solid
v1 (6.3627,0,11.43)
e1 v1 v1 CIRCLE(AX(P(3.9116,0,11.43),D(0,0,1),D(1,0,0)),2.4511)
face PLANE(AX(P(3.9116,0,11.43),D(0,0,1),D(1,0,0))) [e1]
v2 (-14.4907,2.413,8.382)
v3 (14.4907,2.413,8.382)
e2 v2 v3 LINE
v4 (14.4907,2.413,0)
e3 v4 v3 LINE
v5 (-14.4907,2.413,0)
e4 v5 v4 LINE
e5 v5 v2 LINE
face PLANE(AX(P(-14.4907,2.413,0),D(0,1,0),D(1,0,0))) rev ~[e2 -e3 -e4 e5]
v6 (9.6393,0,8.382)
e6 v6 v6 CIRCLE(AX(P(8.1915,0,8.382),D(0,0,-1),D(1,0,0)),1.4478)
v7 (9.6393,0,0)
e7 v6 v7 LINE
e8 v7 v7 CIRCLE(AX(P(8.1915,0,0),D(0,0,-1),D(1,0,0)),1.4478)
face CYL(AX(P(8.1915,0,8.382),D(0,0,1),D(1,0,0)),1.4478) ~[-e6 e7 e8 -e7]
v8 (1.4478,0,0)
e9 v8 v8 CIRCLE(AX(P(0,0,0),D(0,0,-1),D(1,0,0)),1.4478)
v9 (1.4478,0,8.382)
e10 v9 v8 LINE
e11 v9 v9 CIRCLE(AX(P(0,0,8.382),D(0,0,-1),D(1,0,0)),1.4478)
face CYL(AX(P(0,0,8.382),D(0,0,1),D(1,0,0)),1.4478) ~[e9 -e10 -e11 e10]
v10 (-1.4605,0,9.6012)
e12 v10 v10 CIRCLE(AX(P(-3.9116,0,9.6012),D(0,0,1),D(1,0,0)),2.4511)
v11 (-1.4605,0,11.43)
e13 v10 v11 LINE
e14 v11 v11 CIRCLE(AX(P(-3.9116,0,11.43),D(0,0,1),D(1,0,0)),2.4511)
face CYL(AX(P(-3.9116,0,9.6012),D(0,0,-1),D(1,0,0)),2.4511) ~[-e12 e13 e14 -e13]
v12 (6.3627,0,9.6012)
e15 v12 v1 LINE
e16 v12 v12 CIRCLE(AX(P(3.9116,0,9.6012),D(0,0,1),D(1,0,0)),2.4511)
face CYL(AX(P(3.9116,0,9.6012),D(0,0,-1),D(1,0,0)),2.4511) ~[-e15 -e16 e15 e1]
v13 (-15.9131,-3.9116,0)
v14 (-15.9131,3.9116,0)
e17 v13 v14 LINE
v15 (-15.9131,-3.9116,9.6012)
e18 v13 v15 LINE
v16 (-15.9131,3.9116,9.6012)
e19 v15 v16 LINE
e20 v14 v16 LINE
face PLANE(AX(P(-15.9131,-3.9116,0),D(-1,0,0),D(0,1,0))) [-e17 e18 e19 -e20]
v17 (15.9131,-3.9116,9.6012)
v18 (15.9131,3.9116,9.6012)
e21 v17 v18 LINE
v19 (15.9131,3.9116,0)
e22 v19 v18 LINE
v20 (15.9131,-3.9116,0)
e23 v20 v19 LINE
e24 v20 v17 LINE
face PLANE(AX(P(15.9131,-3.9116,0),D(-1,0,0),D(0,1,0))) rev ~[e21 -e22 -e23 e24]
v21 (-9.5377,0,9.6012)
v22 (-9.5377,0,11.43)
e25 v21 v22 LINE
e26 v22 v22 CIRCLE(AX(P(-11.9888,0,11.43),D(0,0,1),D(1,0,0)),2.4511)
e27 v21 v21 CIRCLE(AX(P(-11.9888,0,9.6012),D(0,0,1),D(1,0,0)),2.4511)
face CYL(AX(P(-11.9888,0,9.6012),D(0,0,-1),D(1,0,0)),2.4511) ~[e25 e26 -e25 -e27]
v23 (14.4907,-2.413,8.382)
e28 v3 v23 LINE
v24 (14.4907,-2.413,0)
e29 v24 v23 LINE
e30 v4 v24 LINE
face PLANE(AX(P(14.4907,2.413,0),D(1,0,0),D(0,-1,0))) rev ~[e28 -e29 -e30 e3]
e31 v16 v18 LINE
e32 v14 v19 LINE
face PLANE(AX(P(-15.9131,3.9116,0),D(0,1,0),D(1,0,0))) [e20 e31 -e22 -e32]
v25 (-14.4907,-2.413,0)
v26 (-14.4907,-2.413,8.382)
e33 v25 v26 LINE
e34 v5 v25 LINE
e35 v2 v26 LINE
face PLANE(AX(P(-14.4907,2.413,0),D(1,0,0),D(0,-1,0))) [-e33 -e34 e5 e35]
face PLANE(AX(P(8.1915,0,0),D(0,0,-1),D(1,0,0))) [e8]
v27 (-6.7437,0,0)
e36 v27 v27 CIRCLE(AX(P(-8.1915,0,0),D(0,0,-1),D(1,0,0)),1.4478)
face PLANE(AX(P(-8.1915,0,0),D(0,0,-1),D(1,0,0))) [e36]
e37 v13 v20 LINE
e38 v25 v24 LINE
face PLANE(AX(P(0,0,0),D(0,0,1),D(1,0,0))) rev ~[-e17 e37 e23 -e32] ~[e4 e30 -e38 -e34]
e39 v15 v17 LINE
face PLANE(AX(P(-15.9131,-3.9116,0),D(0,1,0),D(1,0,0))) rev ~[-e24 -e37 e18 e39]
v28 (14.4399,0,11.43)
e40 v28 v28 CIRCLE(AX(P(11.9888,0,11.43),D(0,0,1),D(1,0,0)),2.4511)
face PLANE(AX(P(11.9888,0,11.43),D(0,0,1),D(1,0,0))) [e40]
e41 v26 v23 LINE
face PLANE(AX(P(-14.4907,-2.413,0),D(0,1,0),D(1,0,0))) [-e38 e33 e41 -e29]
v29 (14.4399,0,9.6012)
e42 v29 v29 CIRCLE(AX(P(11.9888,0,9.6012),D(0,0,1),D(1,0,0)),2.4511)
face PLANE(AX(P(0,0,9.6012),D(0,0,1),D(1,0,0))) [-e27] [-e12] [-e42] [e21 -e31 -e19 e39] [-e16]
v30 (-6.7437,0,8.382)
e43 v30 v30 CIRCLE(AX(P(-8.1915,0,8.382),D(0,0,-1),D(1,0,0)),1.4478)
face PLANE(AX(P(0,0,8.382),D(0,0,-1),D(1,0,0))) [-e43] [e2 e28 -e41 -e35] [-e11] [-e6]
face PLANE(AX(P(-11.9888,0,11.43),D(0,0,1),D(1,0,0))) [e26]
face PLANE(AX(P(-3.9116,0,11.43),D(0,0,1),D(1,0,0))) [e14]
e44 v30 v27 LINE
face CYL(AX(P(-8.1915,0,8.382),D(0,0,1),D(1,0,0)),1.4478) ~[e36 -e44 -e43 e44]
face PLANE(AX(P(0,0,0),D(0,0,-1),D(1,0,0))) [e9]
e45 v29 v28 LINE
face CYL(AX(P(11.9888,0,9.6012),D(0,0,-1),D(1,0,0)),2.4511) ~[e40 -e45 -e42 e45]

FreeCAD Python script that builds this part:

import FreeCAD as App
import Part
import Sketcher
Q = App.Units.Quantity

doc = App.newDocument("Part")
body = doc.addObject("PartDesign::Body", "Body")

# Sketch on XY plane
sketch1 = body.newObject("Sketcher::SketchObject", "Sketch")
sketch1.AttachmentSupport = (doc.getObject("XY_Plane"), [""])
sketch1.MapMode = "FlatFace"
sketch1.addGeometry(Part.LineSegment(App.Vector(-16, 4, 0), App.Vector(-16, -4, 0)), False)
sketch1.addGeometry(Part.LineSegment(App.Vector(-16, -4, 0), App.Vector(16, -4, 0)), False)
sketch1.addGeometry(Part.LineSegment(App.Vector(16, -4, 0), App.Vector(16, 4, 0)), False)
sketch1.addGeometry(Part.LineSegment(App.Vector(16, 4, 0), App.Vector(-16, 4, 0)), False)
sketch1.addConstraint(Sketcher.Constraint("Coincident", 0, 2, 1, 1))
sketch1.addConstraint(Sketcher.Constraint("Coincident", 1, 2, 2, 1))
sketch1.addConstraint(Sketcher.Constraint("Coincident", 2, 2, 3, 1))
sketch1.addConstraint(Sketcher.Constraint("Coincident", 3, 2, 0, 1))
sketch1.addConstraint(Sketcher.Constraint("Vertical", 0))
sketch1.addConstraint(Sketcher.Constraint("Horizontal", 1))
sketch1.addConstraint(Sketcher.Constraint("Vertical", 2))
sketch1.addConstraint(Sketcher.Constraint("Horizontal", 3))
sketch1.addConstraint(Sketcher.Constraint("Symmetric", 0, 2, 2, 2, -1, 1))
sketch1.addConstraint(Sketcher.Constraint("DistanceX", 1, 1, 1, 2, Q("1.253 in")))
sketch1.addConstraint(Sketcher.Constraint("DistanceY", 0, 2, 0, 1, Q("0.308 in")))
pad1 = body.newObject("PartDesign::Pad", "Pad")
pad1.Profile = sketch1
pad1.Length = Q("0.378 in")

# Sketch on XY plane
sketch2 = body.newObject("Sketcher::SketchObject", "Sketch001")
sketch2.AttachmentSupport = (doc.getObject("XY_Plane"), [""])
sketch2.MapMode = "FlatFace"
sketch2.AttachmentOffset = App.Placement(App.Vector(0, 0, 0.378 * 25.4), App.Rotation())
sketch2.addGeometry(Part.Circle(App.Vector(12, 0, 0), App.Vector(0, 0, 1), 2.5), False)
sketch2.addGeometry(Part.Circle(App.Vector(3.9, 0, 0), App.Vector(0, 0, 1), 2.5), False)
sketch2.addGeometry(Part.Circle(App.Vector(-3.9, 0, 0), App.Vector(0, 0, 1), 2.5), False)
sketch2.addGeometry(Part.Circle(App.Vector(-12, 0, 0), App.Vector(0, 0, 1), 2.5), False)
sketch2.addConstraint(Sketcher.Constraint("Equal", 0, 1))
sketch2.addConstraint(Sketcher.Constraint("Equal", 1, 2))
sketch2.addConstraint(Sketcher.Constraint("Equal", 2, 3))
sketch2.addConstraint(Sketcher.Constraint("Symmetric", 1, 3, 2, 3, -1, 1))
sketch2.addConstraint(Sketcher.Constraint("Symmetric", 0, 3, 3, 3, -1, 1))
sketch2.addConstraint(Sketcher.Constraint("PointOnObject", 0, 3, -1))
sketch2.addConstraint(Sketcher.Constraint("PointOnObject", 1, 3, -1))
sketch2.addConstraint(Sketcher.Constraint("Diameter", 0, Q("0.193 in")))
sketch2.addConstraint(Sketcher.Constraint("DistanceX", -1, 1, 0, 3, Q("0.472 in")))
sketch2.addConstraint(Sketcher.Constraint("DistanceX", -1, 1, 1, 3, Q("0.154 in")))
pad2 = body.newObject("PartDesign::Pad", "Pad001")
pad2.Profile = sketch2
pad2.Length = Q("0.072 in")

# Sketch on XY plane
sketch3 = body.newObject("Sketcher::SketchObject", "Sketch002")
sketch3.AttachmentSupport = (doc.getObject("XY_Plane"), [""])
sketch3.MapMode = "FlatFace"
sketch3.addGeometry(Part.LineSegment(App.Vector(-14.5, -2.4, 0), App.Vector(-14.5, 2.4, 0)), False)
sketch3.addGeometry(Part.LineSegment(App.Vector(-14.5, 2.4, 0), App.Vector(14.5, 2.4, 0)), False)
sketch3.addGeometry(Part.LineSegment(App.Vector(14.5, 2.4, 0), App.Vector(14.5, -2.4, 0)), False)
sketch3.addGeometry(Part.LineSegment(App.Vector(14.5, -2.4, 0), App.Vector(-14.5, -2.4, 0)), False)
sketch3.addConstraint(Sketcher.Constraint("Coincident", 0, 2, 1, 1))
sketch3.addConstraint(Sketcher.Constraint("Coincident", 1, 2, 2, 1))
sketch3.addConstraint(Sketcher.Constraint("Coincident", 2, 2, 3, 1))
sketch3.addConstraint(Sketcher.Constraint("Coincident", 3, 2, 0, 1))
sketch3.addConstraint(Sketcher.Constraint("Vertical", 0))
sketch3.addConstraint(Sketcher.Constraint("Horizontal", 1))
sketch3.addConstraint(Sketcher.Constraint("Vertical", 2))
sketch3.addConstraint(Sketcher.Constraint("Horizontal", 3))
sketch3.addConstraint(Sketcher.Constraint("Symmetric", 0, 2, 2, 2, -1, 1))
sketch3.addConstraint(Sketcher.Constraint("DistanceY", 0, 1, 0, 2, Q("0.19 in")))
sketch3.addConstraint(Sketcher.Constraint("DistanceX", 1, 1, 1, 2, Q("1.141 in")))
pocket1 = body.newObject("PartDesign::Pocket", "Pocket")
pocket1.Profile = sketch3
pocket1.Length = Q("0.33 in")
pocket1.Reversed = True

# Sketch on XY plane
sketch4 = body.newObject("Sketcher::SketchObject", "Sketch003")
sketch4.AttachmentSupport = (doc.getObject("XY_Plane"), [""])
sketch4.MapMode = "FlatFace"
sketch4.AttachmentOffset = App.Placement(App.Vector(0, 0, 0.33 * 25.4), App.Rotation())
sketch4.addGeometry(Part.Circle(App.Vector(-8.2, 0, 0), App.Vector(0, 0, 1), 1.4), False)
sketch4.addGeometry(Part.Circle(App.Vector(0, 0, 0), App.Vector(0, 0, 1), 1.4), False)
sketch4.addGeometry(Part.Circle(App.Vector(8.2, 0, 0), App.Vector(0, 0, 1), 1.4), False)
sketch4.addConstraint(Sketcher.Constraint("Coincident", 1, 3, -1, 1))
sketch4.addConstraint(Sketcher.Constraint("Equal", 0, 1))
sketch4.addConstraint(Sketcher.Constraint("Equal", 1, 2))
sketch4.addConstraint(Sketcher.Constraint("Symmetric", 0, 3, 2, 3, -1, 1))
sketch4.addConstraint(Sketcher.Constraint("PointOnObject", 0, 3, -1))
sketch4.addConstraint(Sketcher.Constraint("Diameter", 0, Q("0.114 in")))
sketch4.addConstraint(Sketcher.Constraint("DistanceX", 0, 3, 2, 3, Q("0.645 in")))
pad3 = body.newObject("PartDesign::Pad", "Pad002")
pad3.Profile = sketch4
pad3.Length = Q("0.33 in")
pad3.Reversed = True

doc.recompute()
